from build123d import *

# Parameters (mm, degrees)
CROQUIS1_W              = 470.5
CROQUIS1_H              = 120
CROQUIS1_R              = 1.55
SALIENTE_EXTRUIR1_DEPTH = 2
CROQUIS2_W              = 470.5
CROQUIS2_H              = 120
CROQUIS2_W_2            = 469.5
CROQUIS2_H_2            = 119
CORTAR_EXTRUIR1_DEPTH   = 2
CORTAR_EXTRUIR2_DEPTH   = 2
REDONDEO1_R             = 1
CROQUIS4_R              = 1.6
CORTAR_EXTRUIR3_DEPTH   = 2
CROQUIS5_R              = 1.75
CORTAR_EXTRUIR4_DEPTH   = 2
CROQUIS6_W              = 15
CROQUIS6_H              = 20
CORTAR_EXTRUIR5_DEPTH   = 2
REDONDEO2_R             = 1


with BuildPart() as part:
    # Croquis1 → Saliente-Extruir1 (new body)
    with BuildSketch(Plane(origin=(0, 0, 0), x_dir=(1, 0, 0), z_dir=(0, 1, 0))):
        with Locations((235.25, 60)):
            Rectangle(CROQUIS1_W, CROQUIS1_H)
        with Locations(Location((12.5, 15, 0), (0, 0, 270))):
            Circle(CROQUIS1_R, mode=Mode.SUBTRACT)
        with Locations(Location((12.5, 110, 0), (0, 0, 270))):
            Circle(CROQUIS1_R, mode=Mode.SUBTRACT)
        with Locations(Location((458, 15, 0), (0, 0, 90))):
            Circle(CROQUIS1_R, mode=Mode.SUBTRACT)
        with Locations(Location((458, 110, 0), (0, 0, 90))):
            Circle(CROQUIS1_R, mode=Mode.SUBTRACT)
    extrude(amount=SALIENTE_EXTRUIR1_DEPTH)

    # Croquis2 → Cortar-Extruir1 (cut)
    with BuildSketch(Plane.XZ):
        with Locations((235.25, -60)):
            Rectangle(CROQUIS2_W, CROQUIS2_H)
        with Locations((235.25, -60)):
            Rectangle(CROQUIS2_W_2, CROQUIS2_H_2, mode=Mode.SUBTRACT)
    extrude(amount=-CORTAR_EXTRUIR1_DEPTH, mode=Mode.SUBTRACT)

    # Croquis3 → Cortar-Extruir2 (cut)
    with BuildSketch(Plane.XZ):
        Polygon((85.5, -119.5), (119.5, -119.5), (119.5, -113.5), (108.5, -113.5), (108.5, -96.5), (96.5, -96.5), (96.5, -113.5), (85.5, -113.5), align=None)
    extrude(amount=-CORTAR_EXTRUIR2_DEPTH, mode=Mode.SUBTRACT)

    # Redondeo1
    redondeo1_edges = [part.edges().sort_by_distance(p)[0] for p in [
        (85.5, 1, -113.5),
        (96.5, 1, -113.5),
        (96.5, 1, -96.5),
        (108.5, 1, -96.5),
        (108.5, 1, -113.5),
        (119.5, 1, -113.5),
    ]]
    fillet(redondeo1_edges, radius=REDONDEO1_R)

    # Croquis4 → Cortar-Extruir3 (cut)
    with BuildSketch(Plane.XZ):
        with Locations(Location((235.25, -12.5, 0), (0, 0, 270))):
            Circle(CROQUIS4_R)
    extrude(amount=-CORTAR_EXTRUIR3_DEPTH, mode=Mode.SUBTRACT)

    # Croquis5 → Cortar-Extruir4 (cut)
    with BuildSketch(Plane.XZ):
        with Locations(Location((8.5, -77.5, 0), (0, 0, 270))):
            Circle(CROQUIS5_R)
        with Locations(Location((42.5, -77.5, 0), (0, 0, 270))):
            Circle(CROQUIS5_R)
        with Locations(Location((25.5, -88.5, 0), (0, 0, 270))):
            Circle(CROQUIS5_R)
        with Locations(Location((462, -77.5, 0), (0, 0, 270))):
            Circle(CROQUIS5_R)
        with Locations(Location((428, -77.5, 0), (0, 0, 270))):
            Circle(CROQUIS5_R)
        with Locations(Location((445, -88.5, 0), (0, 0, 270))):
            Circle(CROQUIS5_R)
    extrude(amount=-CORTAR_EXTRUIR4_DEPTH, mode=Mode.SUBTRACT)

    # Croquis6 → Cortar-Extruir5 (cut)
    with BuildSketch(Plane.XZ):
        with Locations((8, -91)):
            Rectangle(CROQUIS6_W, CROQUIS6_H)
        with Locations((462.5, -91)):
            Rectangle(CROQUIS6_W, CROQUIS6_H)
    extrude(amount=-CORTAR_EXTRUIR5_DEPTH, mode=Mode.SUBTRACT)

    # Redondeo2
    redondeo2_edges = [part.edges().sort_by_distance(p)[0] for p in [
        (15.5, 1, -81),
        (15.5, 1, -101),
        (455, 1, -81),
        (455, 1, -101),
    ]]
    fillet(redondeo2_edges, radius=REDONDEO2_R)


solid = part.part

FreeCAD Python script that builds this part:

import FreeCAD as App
import Part
import Sketcher
from FreeCAD import Vector


def edges_at(feature, points):
    """Names of the edges that pass closest to the given points."""
    edges = feature.Shape.Edges
    near = lambda p: min(range(len(edges)), key=lambda i: edges[i].distToShape(Part.Vertex(*p))[0])
    return sorted({f"Edge{near(p) + 1}" for p in points})

doc = App.newDocument("Part")
params = doc.addObject("Spreadsheet::Sheet", "Params")
for row, (alias, value) in enumerate([
    ("sketch1_diameter", "3.1 mm"),
    ("sketch1_height", "120 mm"),
    ("sketch1_width", "470.5 mm"),
    ("pad1_length", "2 mm"),
    ("sketch2_height", "120 mm"),
    ("sketch2_height2", "119 mm"),
    ("sketch2_width", "470.5 mm"),
    ("sketch2_width2", "469.5 mm"),
    ("pocket1_length", "2 mm"),
    ("sketch3_width", "34 mm"),
    ("sketch3_width2", "11 mm"),
    ("sketch3_height", "6 mm"),
    ("sketch3_height2", "17 mm"),
    ("pocket2_length", "2 mm"),
    ("fillet_radius", "1 mm"),
    ("sketch4_diameter", "3.2 mm"),
    ("pocket3_length", "2 mm"),
    ("sketch5_diameter", "3.5 mm"),
    ("pocket4_length", "2 mm"),
    ("sketch6_width", "15 mm"),
    ("sketch6_height", "20 mm"),
    ("pocket5_length", "2 mm"),
    ("fillet2_radius", "1 mm"),
], start=1):
    params.set(f"A{row}", alias)
    params.set(f"B{row}", "=" + value)
    params.setAlias(f"B{row}", alias)

body = doc.addObject("PartDesign::Body", "Body")

# Sketch on XZ plane
sketch1 = body.newObject("Sketcher::SketchObject", "Sketch")
sketch1.AttachmentSupport = (doc.getObject("XZ_Plane"), [""])
sketch1.MapMode = "FlatFace"
sketch1.addGeometry([
    Part.LineSegment(Vector(0, -120, 0), Vector(0, 0, 0)),  # 0
    Part.LineSegment(Vector(0, 0, 0), Vector(470.5, 0, 0)),  # 1
    Part.LineSegment(Vector(470.5, 0, 0), Vector(470.5, -120, 0)),  # 2
    Part.LineSegment(Vector(470.5, -120, 0), Vector(0, -120, 0)),  # 3
    Part.Circle(Vector(12.5, -15, 0), Vector(0, 0, 1), 1.55),  # 4
    Part.Circle(Vector(458, -15, 0), Vector(0, 0, 1), 1.55),  # 5
    Part.Circle(Vector(12.5, -110, 0), Vector(0, 0, 1), 1.55),  # 6
    Part.Circle(Vector(458, -110, 0), Vector(0, 0, 1), 1.55),  # 7
], False)
sketch1.addConstraint([
    Sketcher.Constraint("Coincident", 0, 2, 1, 1),
    Sketcher.Constraint("Coincident", 1, 2, 2, 1),
    Sketcher.Constraint("Coincident", 2, 2, 3, 1),
    Sketcher.Constraint("Coincident", 3, 2, 0, 1),
    Sketcher.Constraint("Vertical", 0),
    Sketcher.Constraint("Horizontal", 1),
    Sketcher.Constraint("Vertical", 2),
    Sketcher.Constraint("Horizontal", 3),
    Sketcher.Constraint("Coincident", 0, 2, -1, 1),
    Sketcher.Constraint("Equal", 4, 5),
    Sketcher.Constraint("Equal", 5, 6),
    Sketcher.Constraint("Equal", 6, 7),
    Sketcher.Constraint("Horizontal", 4, 3, 5, 3),
    Sketcher.Constraint("Horizontal", 6, 3, 7, 3),
    Sketcher.Constraint("Vertical", 4, 3, 6, 3),
    Sketcher.Constraint("Vertical", 5, 3, 7, 3),
    Sketcher.Constraint("Diameter", 4, 3.1),
    Sketcher.Constraint("DistanceY", 0, 1, 0, 2, 120.0),
    Sketcher.Constraint("DistanceX", 1, 1, 1, 2, 470.5),
    Sketcher.Constraint("DistanceY", 4, 3, -1, 1, 15.0),
    Sketcher.Constraint("DistanceX", -1, 1, 5, 3, 458.0),
    Sketcher.Constraint("DistanceY", 6, 3, -1, 1, 110.0),
    Sketcher.Constraint("DistanceX", 4, 3, 1, 2, 458.0),
])
sketch1.setExpression("Constraints[16]", "Params.sketch1_diameter")
sketch1.setExpression("Constraints[17]", "Params.sketch1_height")
sketch1.setExpression("Constraints[18]", "Params.sketch1_width")
pad1 = body.newObject("PartDesign::Pad", "Pad")
pad1.Profile = sketch1
pad1.setExpression("Length", "Params.pad1_length")
pad1.Reversed = True

# Sketch on XZ plane
sketch2 = body.newObject("Sketcher::SketchObject", "Sketch001")
sketch2.AttachmentSupport = (doc.getObject("XZ_Plane"), [""])
sketch2.MapMode = "FlatFace"
sketch2.addGeometry([
    Part.LineSegment(Vector(0, 0, 0), Vector(0, -120, 0)),  # 0
    Part.LineSegment(Vector(0, -120, 0), Vector(470.5, -120, 0)),  # 1
    Part.LineSegment(Vector(470.5, -120, 0), Vector(470.5, 0, 0)),  # 2
    Part.LineSegment(Vector(470.5, 0, 0), Vector(0, 0, 0)),  # 3
    Part.LineSegment(Vector(470, -119.5, 0), Vector(0.5, -119.5, 0)),  # 4
    Part.LineSegment(Vector(0.5, -119.5, 0), Vector(0.5, -0.5, 0)),  # 5
    Part.LineSegment(Vector(0.5, -0.5, 0), Vector(470, -0.5, 0)),  # 6
    Part.LineSegment(Vector(470, -0.5, 0), Vector(470, -119.5, 0)),  # 7
], False)
sketch2.addConstraint([
    Sketcher.Constraint("Coincident", 0, 2, 1, 1),
    Sketcher.Constraint("Coincident", 1, 2, 2, 1),
    Sketcher.Constraint("Coincident", 2, 2, 3, 1),
    Sketcher.Constraint("Coincident", 3, 2, 0, 1),
    Sketcher.Constraint("Coincident", 4, 2, 5, 1),
    Sketcher.Constraint("Coincident", 5, 2, 6, 1),
    Sketcher.Constraint("Coincident", 6, 2, 7, 1),
    Sketcher.Constraint("Coincident", 7, 2, 4, 1),
    Sketcher.Constraint("Vertical", 0),
    Sketcher.Constraint("Horizontal", 1),
    Sketcher.Constraint("Vertical", 2),
    Sketcher.Constraint("Horizontal", 3),
    Sketcher.Constraint("Horizontal", 4),
    Sketcher.Constraint("Vertical", 5),
    Sketcher.Constraint("Horizontal", 6),
    Sketcher.Constraint("Vertical", 7),
    Sketcher.Constraint("Coincident", 3, 2, -1, 1),
    Sketcher.Constraint("DistanceY", 0, 2, 0, 1, 120.0),
    Sketcher.Constraint("DistanceY", 5, 1, 5, 2, 119.0),
    Sketcher.Constraint("DistanceX", 1, 1, 1, 2, 470.5),
    Sketcher.Constraint("DistanceX", 4, 2, 4, 1, 469.5),
    Sketcher.Constraint("DistanceX", -1, 1, 6, 2, 470.0),
    Sketcher.Constraint("DistanceY", 4, 2, -1, 1, 119.5),
])
sketch2.setExpression("Constraints[17]", "Params.sketch2_height")
sketch2.setExpression("Constraints[18]", "Params.sketch2_height2")
sketch2.setExpression("Constraints[19]", "Params.sketch2_width")
sketch2.setExpression("Constraints[20]", "Params.sketch2_width2")
pocket1 = body.newObject("PartDesign::Pocket", "Pocket")
pocket1.Profile = sketch2
pocket1.setExpression("Length", "Params.pocket1_length")

# Sketch on XZ plane
sketch3 = body.newObject("Sketcher::SketchObject", "Sketch002")
sketch3.AttachmentSupport = (doc.getObject("XZ_Plane"), [""])
sketch3.MapMode = "FlatFace"
sketch3.addGeometry([
    Part.LineSegment(Vector(85.5, -119.5, 0), Vector(119.5, -119.5, 0)),  # 0
    Part.LineSegment(Vector(119.5, -119.5, 0), Vector(119.5, -113.5, 0)),  # 1
    Part.LineSegment(Vector(119.5, -113.5, 0), Vector(108.5, -113.5, 0)),  # 2
    Part.LineSegment(Vector(108.5, -113.5, 0), Vector(108.5, -96.5, 0)),  # 3
    Part.LineSegment(Vector(108.5, -96.5, 0), Vector(96.5, -96.5, 0)),  # 4
    Part.LineSegment(Vector(96.5, -96.5, 0), Vector(96.5, -113.5, 0)),  # 5
    Part.LineSegment(Vector(96.5, -113.5, 0), Vector(85.5, -113.5, 0)),  # 6
    Part.LineSegment(Vector(85.5, -113.5, 0), Vector(85.5, -119.5, 0)),  # 7
], False)
sketch3.addConstraint([
    Sketcher.Constraint("Coincident", 0, 2, 1, 1),
    Sketcher.Constraint("Coincident", 1, 2, 2, 1),
    Sketcher.Constraint("Coincident", 2, 2, 3, 1),
    Sketcher.Constraint("Coincident", 3, 2, 4, 1),
    Sketcher.Constraint("Coincident", 4, 2, 5, 1),
    Sketcher.Constraint("Coincident", 5, 2, 6, 1),
    Sketcher.Constraint("Coincident", 6, 2, 7, 1),
    Sketcher.Constraint("Coincident", 7, 2, 0, 1),
    Sketcher.Constraint("Horizontal", 0),
    Sketcher.Constraint("Vertical", 1),
    Sketcher.Constraint("Horizontal", 2),
    Sketcher.Constraint("Vertical", 3),
    Sketcher.Constraint("Horizontal", 4),
    Sketcher.Constraint("Vertical", 5),
    Sketcher.Constraint("Horizontal", 6),
    Sketcher.Constraint("Vertical", 7),
    Sketcher.Constraint("Horizontal", 2, 2, 5, 2),
    Sketcher.Constraint("Equal", 2, 6),
    Sketcher.Constraint("DistanceX", 0, 1, 0, 2, 34.0),
    Sketcher.Constraint("DistanceX", 2, 2, 2, 1, 11.0),
    Sketcher.Constraint("DistanceY", 1, 1, 1, 2, 6.0),
    Sketcher.Constraint("DistanceY", 3, 1, 3, 2, 17.0),
    Sketcher.Constraint("DistanceX", -1, 1, 0, 2, 119.5),
    Sketcher.Constraint("DistanceY", 0, 2, -1, 1, 119.5),
])
sketch3.setExpression("Constraints[18]", "Params.sketch3_width")
sketch3.setExpression("Constraints[19]", "Params.sketch3_width2")
sketch3.setExpression("Constraints[20]", "Params.sketch3_height")
sketch3.setExpression("Constraints[21]", "Params.sketch3_height2")
pocket2 = body.newObject("PartDesign::Pocket", "Pocket001")
pocket2.Profile = sketch3
pocket2.setExpression("Length", "Params.pocket2_length")
doc.recompute()

fillet = body.newObject("PartDesign::Fillet", "Fillet")
fillet.Base = (pocket2, edges_at(pocket2, [
    (85.5, 1, -113.5),
    (96.5, 1, -113.5),
    (96.5, 1, -96.5),
    (108.5, 1, -96.5),
    (108.5, 1, -113.5),
    (119.5, 1, -113.5),
]))
fillet.setExpression("Radius", "Params.fillet_radius")

# Sketch on XZ plane
sketch4 = body.newObject("Sketcher::SketchObject", "Sketch003")
sketch4.AttachmentSupport = (doc.getObject("XZ_Plane"), [""])
sketch4.MapMode = "FlatFace"
sketch4.addGeometry(Part.Circle(Vector(235.25, -12.5, 0), Vector(0, 0, 1), 1.6), False)
sketch4.addConstraint([
    Sketcher.Constraint("Diameter", 0, 3.2),
    Sketcher.Constraint("DistanceY", 0, 3, -1, 1, 12.5),
    Sketcher.Constraint("DistanceX", -1, 1, 0, 3, 235.25),
])
sketch4.setExpression("Constraints[0]", "Params.sketch4_diameter")
pocket3 = body.newObject("PartDesign::Pocket", "Pocket002")
pocket3.Profile = sketch4
pocket3.setExpression("Length", "Params.pocket3_length")

# Sketch on XZ plane
sketch5 = body.newObject("Sketcher::SketchObject", "Sketch004")
sketch5.AttachmentSupport = (doc.getObject("XZ_Plane"), [""])
sketch5.MapMode = "FlatFace"
sketch5.addGeometry([
    Part.Circle(Vector(8.5, -77.5, 0), Vector(0, 0, 1), 1.75),  # 0
    Part.Circle(Vector(42.5, -77.5, 0), Vector(0, 0, 1), 1.75),  # 1
    Part.Circle(Vector(25.5, -88.5, 0), Vector(0, 0, 1), 1.75),  # 2
    Part.Circle(Vector(462, -77.5, 0), Vector(0, 0, 1), 1.75),  # 3
    Part.Circle(Vector(428, -77.5, 0), Vector(0, 0, 1), 1.75),  # 4
    Part.Circle(Vector(445, -88.5, 0), Vector(0, 0, 1), 1.75),  # 5
], False)
sketch5.addConstraint([
    Sketcher.Constraint("Equal", 0, 1),
    Sketcher.Constraint("Equal", 1, 2),
    Sketcher.Constraint("Equal", 2, 3),
    Sketcher.Constraint("Equal", 3, 4),
    Sketcher.Constraint("Equal", 4, 5),
    Sketcher.Constraint("Horizontal", 0, 3, 1, 3),
    Sketcher.Constraint("Horizontal", 1, 3, 3, 3),
    Sketcher.Constraint("Horizontal", 3, 3, 4, 3),
    Sketcher.Constraint("Horizontal", 2, 3, 5, 3),
    Sketcher.Constraint("Diameter", 0, 3.5),
    Sketcher.Constraint("DistanceX", -1, 1, 3, 3, 462.0),
    Sketcher.Constraint("DistanceX", -1, 1, 4, 3, 428.0),
    Sketcher.Constraint("DistanceX", -1, 1, 5, 3, 445.0),
    Sketcher.Constraint("DistanceX", 0, 3, 1, 3, 34.0),
    Sketcher.Constraint("DistanceX", 0, 3, 2, 3, 17.0),
    Sketcher.Constraint("DistanceY", 2, 3, 0, 3, 11.0),
    Sketcher.Constraint("DistanceX", -1, 1, 0, 3, 8.5),
    Sketcher.Constraint("DistanceY", 0, 3, -1, 1, 77.5),
])
sketch5.setExpression("Constraints[9]", "Params.sketch5_diameter")
pocket4 = body.newObject("PartDesign::Pocket", "Pocket003")
pocket4.Profile = sketch5
pocket4.setExpression("Length", "Params.pocket4_length")

# Sketch on XZ plane
sketch6 = body.newObject("Sketcher::SketchObject", "Sketch005")
sketch6.AttachmentSupport = (doc.getObject("XZ_Plane"), [""])
sketch6.MapMode = "FlatFace"
sketch6.addGeometry([
    Part.LineSegment(Vector(0.5, -81, 0), Vector(0.5, -101, 0)),  # 0
    Part.LineSegment(Vector(0.5, -101, 0), Vector(15.5, -101, 0)),  # 1
    Part.LineSegment(Vector(15.5, -101, 0), Vector(15.5, -81, 0)),  # 2
    Part.LineSegment(Vector(15.5, -81, 0), Vector(0.5, -81, 0)),  # 3
    Part.LineSegment(Vector(455, -81, 0), Vector(455, -101, 0)),  # 4
    Part.LineSegment(Vector(455, -101, 0), Vector(470, -101, 0)),  # 5
    Part.LineSegment(Vector(470, -101, 0), Vector(470, -81, 0)),  # 6
    Part.LineSegment(Vector(470, -81, 0), Vector(455, -81, 0)),  # 7
], False)
sketch6.addConstraint([
    Sketcher.Constraint("Coincident", 0, 2, 1, 1),
    Sketcher.Constraint("Coincident", 1, 2, 2, 1),
    Sketcher.Constraint("Coincident", 2, 2, 3, 1),
    Sketcher.Constraint("Coincident", 3, 2, 0, 1),
    Sketcher.Constraint("Coincident", 4, 2, 5, 1),
    Sketcher.Constraint("Coincident", 5, 2, 6, 1),
    Sketcher.Constraint("Coincident", 6, 2, 7, 1),
    Sketcher.Constraint("Coincident", 7, 2, 4, 1),
    Sketcher.Constraint("Vertical", 0),
    Sketcher.Constraint("Horizontal", 1),
    Sketcher.Constraint("Vertical", 2),
    Sketcher.Constraint("Horizontal", 3),
    Sketcher.Constraint("Vertical", 4),
    Sketcher.Constraint("Horizontal", 5),
    Sketcher.Constraint("Vertical", 6),
    Sketcher.Constraint("Horizontal", 7),
    Sketcher.Constraint("Horizontal", 1, 2, 4, 2),
    Sketcher.Constraint("Horizontal", 3, 2, 6, 2),
    Sketcher.Constraint("Equal", 3, 5),
    Sketcher.Constraint("DistanceX", 1, 1, 1, 2, 15.0),
    Sketcher.Constraint("DistanceY", 0, 2, 0, 1, 20.0),
    Sketcher.Constraint("DistanceY", 0, 2, -1, 1, 101.0),
    Sketcher.Constraint("DistanceX", -1, 1, 4, 2, 455.0),
    Sketcher.Constraint("DistanceX", -1, 1, 0, 2, 0.5),
])
sketch6.setExpression("Constraints[19]", "Params.sketch6_width")
sketch6.setExpression("Constraints[20]", "Params.sketch6_height")
pocket5 = body.newObject("PartDesign::Pocket", "Pocket004")
pocket5.Profile = sketch6
pocket5.setExpression("Length", "Params.pocket5_length")
doc.recompute()

fillet2 = body.newObject("PartDesign::Fillet", "Fillet001")
fillet2.Base = (pocket5, edges_at(pocket5, [
    (15.5, 1, -81),
    (15.5, 1, -101),
    (455, 1, -81),
    (455, 1, -101),
]))
fillet2.setExpression("Radius", "Params.fillet2_radius")

doc.recompute()
